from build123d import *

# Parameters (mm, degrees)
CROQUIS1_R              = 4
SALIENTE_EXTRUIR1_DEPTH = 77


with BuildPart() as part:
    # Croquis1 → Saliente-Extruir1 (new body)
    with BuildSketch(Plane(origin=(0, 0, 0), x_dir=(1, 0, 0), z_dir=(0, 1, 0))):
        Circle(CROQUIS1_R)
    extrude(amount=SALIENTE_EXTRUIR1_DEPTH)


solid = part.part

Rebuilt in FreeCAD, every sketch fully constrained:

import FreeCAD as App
import Part
import Sketcher

doc = App.newDocument("Part")
body = doc.addObject("PartDesign::Body", "Body")

# Sketch on XZ plane
sketch1 = body.newObject("Sketcher::SketchObject", "Sketch")
sketch1.AttachmentSupport = (doc.getObject("XZ_Plane"), [""])
sketch1.MapMode = "FlatFace"
sketch1.addGeometry(Part.Circle(App.Vector(0, 0, 0), App.Vector(0, 0, 1), 4), False)
sketch1.addConstraint(Sketcher.Constraint("Coincident", 0, 3, -1, 1))
sketch1.addConstraint(Sketcher.Constraint("Diameter", 0, 8.0))
pad1 = body.newObject("PartDesign::Pad", "Pad")
pad1.Profile = sketch1
pad1.Length = 77
pad1.Reversed = True

doc.recompute()
